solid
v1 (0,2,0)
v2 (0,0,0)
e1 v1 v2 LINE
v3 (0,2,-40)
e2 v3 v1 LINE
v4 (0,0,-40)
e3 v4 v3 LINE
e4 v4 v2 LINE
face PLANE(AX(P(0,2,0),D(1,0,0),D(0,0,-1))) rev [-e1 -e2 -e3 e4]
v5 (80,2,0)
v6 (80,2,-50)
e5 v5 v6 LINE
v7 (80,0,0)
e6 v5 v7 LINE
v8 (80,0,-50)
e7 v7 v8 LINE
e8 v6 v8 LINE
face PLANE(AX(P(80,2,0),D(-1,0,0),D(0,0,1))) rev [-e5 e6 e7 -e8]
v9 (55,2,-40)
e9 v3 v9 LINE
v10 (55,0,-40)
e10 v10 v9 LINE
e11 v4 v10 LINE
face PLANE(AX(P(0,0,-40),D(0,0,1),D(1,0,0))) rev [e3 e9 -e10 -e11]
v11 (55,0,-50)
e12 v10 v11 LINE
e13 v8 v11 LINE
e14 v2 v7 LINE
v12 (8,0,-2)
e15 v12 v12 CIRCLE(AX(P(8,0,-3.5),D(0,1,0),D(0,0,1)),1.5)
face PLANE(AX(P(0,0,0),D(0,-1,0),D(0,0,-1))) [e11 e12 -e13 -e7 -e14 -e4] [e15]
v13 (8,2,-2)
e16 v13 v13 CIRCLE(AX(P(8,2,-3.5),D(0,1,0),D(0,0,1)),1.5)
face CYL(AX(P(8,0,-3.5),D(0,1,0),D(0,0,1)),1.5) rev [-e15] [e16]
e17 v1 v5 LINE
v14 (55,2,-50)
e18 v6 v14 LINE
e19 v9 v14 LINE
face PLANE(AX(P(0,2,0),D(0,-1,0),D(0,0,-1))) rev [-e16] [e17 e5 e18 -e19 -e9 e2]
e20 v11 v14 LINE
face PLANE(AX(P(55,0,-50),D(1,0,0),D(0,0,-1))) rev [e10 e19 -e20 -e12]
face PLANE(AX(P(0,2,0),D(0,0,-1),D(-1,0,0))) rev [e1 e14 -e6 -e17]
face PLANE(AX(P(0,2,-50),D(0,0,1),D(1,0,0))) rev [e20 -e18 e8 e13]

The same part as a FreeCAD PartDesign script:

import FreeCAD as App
import Part
import Sketcher
Q = App.Units.Quantity

doc = App.newDocument("Part")
body = doc.addObject("PartDesign::Body", "Body")

# Sketch on XZ plane
sketch1 = body.newObject("Sketcher::SketchObject", "Sketch")
sketch1.AttachmentSupport = (doc.getObject("XZ_Plane"), [""])
sketch1.MapMode = "FlatFace"
sketch1.addGeometry([
    Part.LineSegment(App.Vector(0, -50, 0), App.Vector(0, 0, 0)),
    Part.LineSegment(App.Vector(0, 0, 0), App.Vector(80, 0, 0)),
    Part.LineSegment(App.Vector(80, 0, 0), App.Vector(80, -50, 0)),
    Part.LineSegment(App.Vector(80, -50, 0), App.Vector(0, -50, 0)),
], False)
sketch1.addConstraint([
    Sketcher.Constraint("Coincident", 0, 2, 1, 1),
    Sketcher.Constraint("Coincident", 1, 2, 2, 1),
    Sketcher.Constraint("Coincident", 2, 2, 3, 1),
    Sketcher.Constraint("Coincident", 3, 2, 0, 1),
    Sketcher.Constraint("Vertical", 0),
    Sketcher.Constraint("Horizontal", 1),
    Sketcher.Constraint("Vertical", 2),
    Sketcher.Constraint("Horizontal", 3),
    Sketcher.Constraint("Coincident", 0, 2, -1, 1),
    Sketcher.Constraint("DistanceX", 1, 1, 1, 2, Q("80 mm")),
    Sketcher.Constraint("DistanceY", 0, 1, 0, 2, Q("50 mm")),
])
pad1 = body.newObject("PartDesign::Pad", "Pad")
pad1.Profile = sketch1
pad1.Length = 2
pad1.Reversed = True

# Sketch on XZ plane
sketch2 = body.newObject("Sketcher::SketchObject", "Sketch001")
sketch2.AttachmentSupport = (doc.getObject("XZ_Plane"), [""])
sketch2.MapMode = "FlatFace"
sketch2.AttachmentOffset = App.Placement(App.Vector(0, 0, -2), App.Rotation())
sketch2.addGeometry(Part.Circle(App.Vector(8, -3.5, 0), App.Vector(0, 0, 1), 1.5), False)
sketch2.addConstraint([
    Sketcher.Constraint("Diameter", 0, Q("3 mm")),
    Sketcher.Constraint("DistanceX", -1, 1, 0, 3, Q("8 mm")),
    Sketcher.Constraint("DistanceY", 0, 3, -1, 1, Q("3.5 mm")),
])
pocket1 = body.newObject("PartDesign::Pocket", "Pocket")
pocket1.Profile = sketch2
pocket1.Length = 2
pocket1.Reversed = True

# Sketch on XZ plane
sketch3 = body.newObject("Sketcher::SketchObject", "Sketch002")
sketch3.AttachmentSupport = (doc.getObject("XZ_Plane"), [""])
sketch3.MapMode = "FlatFace"
sketch3.AttachmentOffset = App.Placement(App.Vector(0, 0, -2), App.Rotation())
sketch3.addGeometry([
    Part.LineSegment(App.Vector(0, -50, 0), App.Vector(0, -40, 0)),
    Part.LineSegment(App.Vector(0, -40, 0), App.Vector(55, -40, 0)),
    Part.LineSegment(App.Vector(55, -40, 0), App.Vector(55, -50, 0)),
    Part.LineSegment(App.Vector(55, -50, 0), App.Vector(0, -50, 0)),
], False)
sketch3.addConstraint([
    Sketcher.Constraint("Coincident", 0, 2, 1, 1),
    Sketcher.Constraint("Coincident", 1, 2, 2, 1),
    Sketcher.Constraint("Coincident", 2, 2, 3, 1),
    Sketcher.Constraint("Coincident", 3, 2, 0, 1),
    Sketcher.Constraint("Vertical", 0),
    Sketcher.Constraint("Horizontal", 1),
    Sketcher.Constraint("Vertical", 2),
    Sketcher.Constraint("Horizontal", 3),
    Sketcher.Constraint("PointOnObject", 0, 2, -2),
    Sketcher.Constraint("DistanceX", 1, 1, 1, 2, Q("55 mm")),
    Sketcher.Constraint("DistanceY", 0, 1, 0, 2, Q("10 mm")),
    Sketcher.Constraint("DistanceY", 0, 2, -1, 1, Q("40 mm")),
])
pocket2 = body.newObject("PartDesign::Pocket", "Pocket001")
pocket2.Profile = sketch3
pocket2.Type = "ThroughAll"
pocket2.Reversed = True

doc.recompute()
